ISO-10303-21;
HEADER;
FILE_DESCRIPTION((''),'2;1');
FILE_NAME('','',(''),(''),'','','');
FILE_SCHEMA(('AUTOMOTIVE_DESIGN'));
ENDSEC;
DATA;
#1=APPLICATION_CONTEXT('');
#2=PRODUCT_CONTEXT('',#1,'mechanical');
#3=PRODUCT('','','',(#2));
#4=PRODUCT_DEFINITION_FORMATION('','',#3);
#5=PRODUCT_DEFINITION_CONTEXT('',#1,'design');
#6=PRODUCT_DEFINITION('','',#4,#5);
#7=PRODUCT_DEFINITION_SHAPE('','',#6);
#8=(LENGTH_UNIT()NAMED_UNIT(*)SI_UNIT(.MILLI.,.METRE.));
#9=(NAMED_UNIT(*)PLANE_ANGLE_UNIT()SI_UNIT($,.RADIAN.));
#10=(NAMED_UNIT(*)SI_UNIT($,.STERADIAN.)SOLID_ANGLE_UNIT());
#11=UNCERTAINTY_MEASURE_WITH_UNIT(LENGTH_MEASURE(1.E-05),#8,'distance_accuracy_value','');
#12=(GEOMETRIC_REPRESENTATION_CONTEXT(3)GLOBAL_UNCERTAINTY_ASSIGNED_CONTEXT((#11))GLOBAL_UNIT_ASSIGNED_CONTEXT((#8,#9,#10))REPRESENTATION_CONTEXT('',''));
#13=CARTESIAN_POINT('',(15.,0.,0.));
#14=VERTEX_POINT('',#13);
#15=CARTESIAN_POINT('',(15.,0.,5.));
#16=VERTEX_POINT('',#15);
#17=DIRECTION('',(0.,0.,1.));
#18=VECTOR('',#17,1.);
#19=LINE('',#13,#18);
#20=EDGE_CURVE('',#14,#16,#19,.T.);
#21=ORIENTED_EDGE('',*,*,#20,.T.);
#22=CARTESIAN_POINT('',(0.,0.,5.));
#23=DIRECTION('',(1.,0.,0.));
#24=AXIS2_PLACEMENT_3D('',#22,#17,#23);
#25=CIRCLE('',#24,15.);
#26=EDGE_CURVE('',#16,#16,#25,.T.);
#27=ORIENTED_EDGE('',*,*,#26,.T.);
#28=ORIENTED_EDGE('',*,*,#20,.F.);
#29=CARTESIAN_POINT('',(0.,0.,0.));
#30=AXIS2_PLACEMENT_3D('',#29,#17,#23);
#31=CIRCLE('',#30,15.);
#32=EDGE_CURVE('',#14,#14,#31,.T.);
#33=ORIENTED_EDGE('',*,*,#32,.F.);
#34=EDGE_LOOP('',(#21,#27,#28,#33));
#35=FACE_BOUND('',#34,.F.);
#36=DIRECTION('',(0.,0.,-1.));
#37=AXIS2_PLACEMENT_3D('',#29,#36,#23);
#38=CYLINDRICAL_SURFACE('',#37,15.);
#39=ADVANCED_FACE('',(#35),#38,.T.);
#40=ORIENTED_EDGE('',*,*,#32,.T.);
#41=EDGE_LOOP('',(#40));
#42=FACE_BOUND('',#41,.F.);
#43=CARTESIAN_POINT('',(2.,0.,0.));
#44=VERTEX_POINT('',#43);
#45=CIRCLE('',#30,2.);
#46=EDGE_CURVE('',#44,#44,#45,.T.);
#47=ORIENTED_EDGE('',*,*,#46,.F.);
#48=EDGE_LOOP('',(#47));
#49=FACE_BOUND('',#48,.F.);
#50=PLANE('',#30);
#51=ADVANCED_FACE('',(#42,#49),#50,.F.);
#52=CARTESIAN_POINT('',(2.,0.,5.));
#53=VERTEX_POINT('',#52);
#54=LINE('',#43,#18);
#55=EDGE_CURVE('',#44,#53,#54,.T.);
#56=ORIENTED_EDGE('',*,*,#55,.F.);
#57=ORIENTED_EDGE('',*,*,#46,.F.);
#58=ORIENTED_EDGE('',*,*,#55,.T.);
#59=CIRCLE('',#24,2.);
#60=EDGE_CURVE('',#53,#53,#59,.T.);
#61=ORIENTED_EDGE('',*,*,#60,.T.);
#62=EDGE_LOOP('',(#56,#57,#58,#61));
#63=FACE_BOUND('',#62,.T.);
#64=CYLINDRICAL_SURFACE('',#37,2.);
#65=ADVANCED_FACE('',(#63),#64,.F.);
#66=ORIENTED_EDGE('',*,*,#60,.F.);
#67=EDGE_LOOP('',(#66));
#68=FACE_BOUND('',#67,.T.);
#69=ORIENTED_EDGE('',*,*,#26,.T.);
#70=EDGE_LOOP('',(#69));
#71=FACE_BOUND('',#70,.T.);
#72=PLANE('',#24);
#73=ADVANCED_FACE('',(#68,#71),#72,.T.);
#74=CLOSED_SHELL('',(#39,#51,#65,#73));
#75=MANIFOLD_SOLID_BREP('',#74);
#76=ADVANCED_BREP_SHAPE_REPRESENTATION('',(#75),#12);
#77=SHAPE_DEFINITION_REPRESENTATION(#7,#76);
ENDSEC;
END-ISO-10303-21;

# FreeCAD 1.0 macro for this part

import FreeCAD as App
import Part
import Sketcher
from FreeCAD import Vector

doc = App.newDocument("Part")
body = doc.addObject("PartDesign::Body", "Body")

# Sketch on XY plane
sketch1 = doc.addObject("Sketcher::SketchObject", "Sketch")
body.addObject(sketch1)
sketch1.AttachmentSupport = (doc.XY_Plane, [""])
sketch1.MapMode = "FlatFace"
sketch1.addGeometry(Part.Circle(Vector(0, 0, 0), Vector(0, 0, 1), 15), False)
sketch1.addGeometry(Part.Circle(Vector(0, 0, 0), Vector(0, 0, 1), 2), False)
sketch1.addConstraint(Sketcher.Constraint("Coincident", 0, 3, -1, 1))
sketch1.addConstraint(Sketcher.Constraint("Coincident", 1, 3, -1, 1))
sketch1.addConstraint(Sketcher.Constraint("Diameter", 0, 30.0))
sketch1.addConstraint(Sketcher.Constraint("Diameter", 1, 4.0))
pad1 = doc.addObject("PartDesign::Pad", "Pad")
body.addObject(pad1)
pad1.Profile = sketch1
pad1.Length = 5

doc.recompute()
